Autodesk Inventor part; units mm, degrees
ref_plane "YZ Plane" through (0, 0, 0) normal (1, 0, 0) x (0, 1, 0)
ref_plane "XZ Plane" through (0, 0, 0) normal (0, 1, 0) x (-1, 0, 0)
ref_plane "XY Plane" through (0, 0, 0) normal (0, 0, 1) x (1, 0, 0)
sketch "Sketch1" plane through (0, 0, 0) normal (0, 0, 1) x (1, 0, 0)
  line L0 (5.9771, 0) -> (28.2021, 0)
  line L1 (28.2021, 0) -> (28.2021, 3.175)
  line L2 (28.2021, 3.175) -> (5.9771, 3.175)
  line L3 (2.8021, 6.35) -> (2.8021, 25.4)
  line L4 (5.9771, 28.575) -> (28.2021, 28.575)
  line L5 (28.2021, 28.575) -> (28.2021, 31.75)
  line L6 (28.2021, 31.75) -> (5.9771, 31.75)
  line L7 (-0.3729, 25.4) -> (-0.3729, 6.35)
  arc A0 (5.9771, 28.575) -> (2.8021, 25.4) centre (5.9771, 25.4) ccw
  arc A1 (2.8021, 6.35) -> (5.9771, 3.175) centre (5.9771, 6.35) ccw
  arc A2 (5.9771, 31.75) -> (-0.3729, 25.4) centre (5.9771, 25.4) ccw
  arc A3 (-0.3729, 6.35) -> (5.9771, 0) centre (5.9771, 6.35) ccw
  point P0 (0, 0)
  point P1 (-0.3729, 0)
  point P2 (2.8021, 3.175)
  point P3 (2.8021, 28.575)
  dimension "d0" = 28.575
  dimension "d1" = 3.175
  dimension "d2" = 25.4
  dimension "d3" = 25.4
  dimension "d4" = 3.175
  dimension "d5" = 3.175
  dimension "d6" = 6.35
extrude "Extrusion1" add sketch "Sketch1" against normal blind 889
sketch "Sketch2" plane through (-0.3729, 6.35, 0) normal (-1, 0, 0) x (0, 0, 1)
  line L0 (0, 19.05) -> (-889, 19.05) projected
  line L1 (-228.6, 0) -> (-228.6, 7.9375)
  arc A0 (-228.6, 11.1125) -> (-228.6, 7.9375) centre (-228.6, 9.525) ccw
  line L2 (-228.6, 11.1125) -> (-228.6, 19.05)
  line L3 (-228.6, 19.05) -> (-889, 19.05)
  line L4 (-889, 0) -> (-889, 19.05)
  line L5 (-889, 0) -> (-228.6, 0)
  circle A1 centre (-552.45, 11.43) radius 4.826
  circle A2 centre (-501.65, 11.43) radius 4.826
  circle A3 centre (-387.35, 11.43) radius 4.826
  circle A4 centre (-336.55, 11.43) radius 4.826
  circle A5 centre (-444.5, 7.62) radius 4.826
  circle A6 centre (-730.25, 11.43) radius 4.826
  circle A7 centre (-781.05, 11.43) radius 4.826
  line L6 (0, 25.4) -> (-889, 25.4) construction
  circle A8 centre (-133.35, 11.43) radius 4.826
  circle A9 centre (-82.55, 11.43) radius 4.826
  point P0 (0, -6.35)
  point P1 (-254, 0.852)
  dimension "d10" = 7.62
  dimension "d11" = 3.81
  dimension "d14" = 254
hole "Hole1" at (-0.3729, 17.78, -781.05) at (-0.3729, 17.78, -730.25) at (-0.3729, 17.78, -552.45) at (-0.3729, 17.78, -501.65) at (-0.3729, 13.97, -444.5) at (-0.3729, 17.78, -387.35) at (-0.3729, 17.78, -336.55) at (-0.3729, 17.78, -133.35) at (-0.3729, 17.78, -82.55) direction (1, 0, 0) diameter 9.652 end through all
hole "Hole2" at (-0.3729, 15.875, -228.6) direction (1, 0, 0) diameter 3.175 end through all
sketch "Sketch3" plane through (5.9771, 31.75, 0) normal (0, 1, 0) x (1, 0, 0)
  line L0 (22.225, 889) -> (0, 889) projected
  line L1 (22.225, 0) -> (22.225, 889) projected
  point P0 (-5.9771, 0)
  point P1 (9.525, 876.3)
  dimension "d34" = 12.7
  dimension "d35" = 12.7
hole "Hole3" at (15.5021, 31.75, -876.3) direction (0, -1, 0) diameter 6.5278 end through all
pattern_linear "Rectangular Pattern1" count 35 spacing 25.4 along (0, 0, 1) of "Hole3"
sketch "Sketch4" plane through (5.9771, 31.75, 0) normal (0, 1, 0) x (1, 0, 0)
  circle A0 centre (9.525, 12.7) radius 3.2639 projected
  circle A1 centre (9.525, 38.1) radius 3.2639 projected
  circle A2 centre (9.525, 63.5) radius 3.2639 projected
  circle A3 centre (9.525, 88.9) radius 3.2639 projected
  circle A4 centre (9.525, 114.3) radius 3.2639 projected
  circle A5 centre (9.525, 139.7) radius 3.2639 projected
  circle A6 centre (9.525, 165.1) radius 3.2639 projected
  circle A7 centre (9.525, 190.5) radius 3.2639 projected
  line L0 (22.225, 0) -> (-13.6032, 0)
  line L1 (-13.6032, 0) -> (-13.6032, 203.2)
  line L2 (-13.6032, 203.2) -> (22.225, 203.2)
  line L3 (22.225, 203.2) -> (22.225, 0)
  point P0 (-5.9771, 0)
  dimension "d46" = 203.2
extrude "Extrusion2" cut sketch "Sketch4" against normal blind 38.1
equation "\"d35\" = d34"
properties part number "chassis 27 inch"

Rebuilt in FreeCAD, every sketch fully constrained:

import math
import FreeCAD as App
import Part
import Sketcher
Q = App.Units.Quantity


def add_polygon(sketch, points):
    """Adds a closed chain of lines whose ends are joined by coincident constraints."""
    first, n = sketch.GeometryCount, len(points)
    for a, b in zip(points, points[1:] + points[:1]):
        sketch.addGeometry(Part.LineSegment(App.Vector(*a, 0), App.Vector(*b, 0)), False)
    for i in range(n):
        sketch.addConstraint(Sketcher.Constraint("Coincident", first + i, 2, first + (i + 1) % n, 1))

doc = App.newDocument("Part")
body = doc.addObject("PartDesign::Body", "Body")

sketch1 = doc.addObject("Sketcher::SketchObject", "Sketch")
body.addObject(sketch1)
sketch1.AttachmentSupport = (doc.XY_Plane, [""])
sketch1.MapMode = "FlatFace"
sketch1.addGeometry([
    Part.ArcOfCircle(Part.Circle(App.Vector(6, 6.3, 0), App.Vector(0, 0, 1), 6.3), math.radians(180), math.radians(270)),
    Part.LineSegment(App.Vector(6, 0, 0), App.Vector(28.2, 0, 0)),
    Part.LineSegment(App.Vector(28.2, 0, 0), App.Vector(28.2, 3.2, 0)),
    Part.LineSegment(App.Vector(28.2, 3.2, 0), App.Vector(6, 3.2, 0)),
    Part.ArcOfCircle(Part.Circle(App.Vector(6, 6.3, 0), App.Vector(0, 0, 1), 3.2), math.radians(180), math.radians(270)),
    Part.LineSegment(App.Vector(2.8, 6.3, 0), App.Vector(2.8, 25.4, 0)),
    Part.ArcOfCircle(Part.Circle(App.Vector(6, 25.4, 0), App.Vector(0, 0, 1), 3.2), math.radians(90), math.radians(180)),
    Part.LineSegment(App.Vector(6, 28.6, 0), App.Vector(28.2, 28.6, 0)),
    Part.LineSegment(App.Vector(28.2, 28.6, 0), App.Vector(28.2, 31.8, 0)),
    Part.LineSegment(App.Vector(28.2, 31.8, 0), App.Vector(6, 31.8, 0)),
    Part.ArcOfCircle(Part.Circle(App.Vector(6, 25.4, 0), App.Vector(0, 0, 1), 6.4), math.radians(90), math.radians(180)),
    Part.LineSegment(App.Vector(-0.4, 25.4, 0), App.Vector(-0.4, 6.3, 0)),
], False)
sketch1.addConstraint([
    Sketcher.Constraint("Tangent", 0, 2, 1, 1),
    Sketcher.Constraint("Coincident", 1, 2, 2, 1),
    Sketcher.Constraint("Coincident", 2, 2, 3, 1),
    Sketcher.Constraint("Tangent", 3, 2, 4, 2),
    Sketcher.Constraint("Tangent", 4, 1, 5, 1),
    Sketcher.Constraint("Tangent", 5, 2, 6, 2),
    Sketcher.Constraint("Tangent", 6, 1, 7, 1),
    Sketcher.Constraint("Coincident", 7, 2, 8, 1),
    Sketcher.Constraint("Coincident", 8, 2, 9, 1),
    Sketcher.Constraint("Tangent", 9, 2, 10, 1),
    Sketcher.Constraint("Tangent", 10, 2, 11, 1),
    Sketcher.Constraint("Tangent", 11, 2, 0, 1),
    Sketcher.Constraint("Horizontal", 1),
    Sketcher.Constraint("Vertical", 2),
    Sketcher.Constraint("Horizontal", 3),
    Sketcher.Constraint("Vertical", 5),
    Sketcher.Constraint("Horizontal", 7),
    Sketcher.Constraint("Vertical", 8),
    Sketcher.Constraint("Horizontal", 9),
    Sketcher.Constraint("Vertical", 11),
    Sketcher.Constraint("Coincident", 4, 3, 0, 3),
    Sketcher.Constraint("Coincident", 10, 3, 6, 3),
    Sketcher.Constraint("Equal", 4, 6),
    Sketcher.Constraint("PointOnObject", 0, 2, -1),
    Sketcher.Constraint("Vertical", 2, 2, 7, 2),
    Sketcher.Constraint("Radius", 0, Q("0.25 in")),
    Sketcher.Constraint("DistanceY", -1, 1, 6, 3, Q("1 in")),
    Sketcher.Constraint("Radius", 4, Q("0.125 in")),
    Sketcher.Constraint("DistanceX", 5, 2, 7, 2, Q("1 in")),
    Sketcher.Constraint("DistanceX", -1, 1, 0, 3, Q("5.977 mm")),
])
pad1 = doc.addObject("PartDesign::Pad", "Pad")
body.addObject(pad1)
pad1.Profile = sketch1
pad1.Length = Q("35 in")
pad1.Reversed = True

sketch2 = doc.addObject("Sketcher::SketchObject", "Sketch001")
body.addObject(sketch2)
sketch2.AttachmentSupport = (doc.YZ_Plane, [""])
sketch2.MapMode = "FlatFace"
sketch2.AttachmentOffset = App.Placement(App.Vector(0, 0, -0.3729), App.Rotation())
sketch2.addGeometry([
    Part.Circle(App.Vector(17.8, -781, 0), App.Vector(0, 0, 1), 4.8),
    Part.Circle(App.Vector(17.8, -730.2, 0), App.Vector(0, 0, 1), 4.8),
    Part.Circle(App.Vector(17.8, -552.5, 0), App.Vector(0, 0, 1), 4.8),
    Part.Circle(App.Vector(17.8, -501.6, 0), App.Vector(0, 0, 1), 4.8),
    Part.Circle(App.Vector(14, -444.5, 0), App.Vector(0, 0, 1), 4.8),
    Part.Circle(App.Vector(17.8, -387.4, 0), App.Vector(0, 0, 1), 4.8),
    Part.Circle(App.Vector(17.8, -336.6, 0), App.Vector(0, 0, 1), 4.8),
    Part.Circle(App.Vector(17.8, -133.3, 0), App.Vector(0, 0, 1), 4.8),
    Part.Circle(App.Vector(17.8, -82.5, 0), App.Vector(0, 0, 1), 4.8),
], False)
sketch2.addConstraint([
    Sketcher.Constraint("Equal", 0, 1),
    Sketcher.Constraint("Equal", 1, 2),
    Sketcher.Constraint("Equal", 2, 3),
    Sketcher.Constraint("Equal", 3, 4),
    Sketcher.Constraint("Equal", 4, 5),
    Sketcher.Constraint("Equal", 5, 6),
    Sketcher.Constraint("Equal", 6, 7),
    Sketcher.Constraint("Equal", 7, 8),
    Sketcher.Constraint("Vertical", 0, 3, 1, 3),
    Sketcher.Constraint("Vertical", 1, 3, 2, 3),
    Sketcher.Constraint("Vertical", 2, 3, 3, 3),
    Sketcher.Constraint("Vertical", 3, 3, 5, 3),
    Sketcher.Constraint("Vertical", 5, 3, 6, 3),
    Sketcher.Constraint("Vertical", 6, 3, 7, 3),
    Sketcher.Constraint("Vertical", 7, 3, 8, 3),
    Sketcher.Constraint("Diameter", 0, Q("0.38 in")),
    Sketcher.Constraint("DistanceY", 0, 3, 1, 3, Q("2 in")),
    Sketcher.Constraint("DistanceY", 1, 3, 2, 3, Q("7 in")),
    Sketcher.Constraint("DistanceY", 2, 3, 3, 3, Q("2 in")),
    Sketcher.Constraint("DistanceY", 5, 3, 6, 3, Q("2 in")),
    Sketcher.Constraint("DistanceY", 6, 3, 7, 3, Q("8 in")),
    Sketcher.Constraint("DistanceY", 7, 3, 8, 3, Q("2 in")),
    Sketcher.Constraint("DistanceX", -1, 1, 0, 3, Q("0.7 in")),
    Sketcher.Constraint("DistanceY", 4, 3, -1, 1, Q("17.5 in")),
    Sketcher.Constraint("DistanceY", 3, 3, 5, 3, Q("4.5 in")),
    Sketcher.Constraint("DistanceY", 0, 3, -1, 1, Q("30.75 in")),
    Sketcher.Constraint("DistanceX", -1, 1, 4, 3, Q("0.55 in")),
])
doc.recompute()
hole = doc.addObject("PartDesign::Hole", "Hole")
body.addObject(hole)
hole.Profile = sketch2
hole.ThreadType = "None"
hole.Diameter = Q("0.38 in")
hole.DepthType = "ThroughAll"
hole.Reversed = True

sketch3 = doc.addObject("Sketcher::SketchObject", "Sketch002")
body.addObject(sketch3)
sketch3.AttachmentSupport = (doc.YZ_Plane, [""])
sketch3.MapMode = "FlatFace"
sketch3.AttachmentOffset = App.Placement(App.Vector(0, 0, -0.3729), App.Rotation())
sketch3.addGeometry(Part.Circle(App.Vector(15.9, -228.6, 0), App.Vector(0, 0, 1), 1.6), False)
sketch3.addConstraint([
    Sketcher.Constraint("Diameter", 0, Q("0.125 in")),
    Sketcher.Constraint("DistanceY", 0, 3, -1, 1, Q("9 in")),
    Sketcher.Constraint("DistanceX", -1, 1, 0, 3, Q("0.625 in")),
])
doc.recompute()
hole2 = doc.addObject("PartDesign::Hole", "Hole001")
body.addObject(hole2)
hole2.Profile = sketch3
hole2.ThreadType = "None"
hole2.Diameter = Q("0.125 in")
hole2.DepthType = "ThroughAll"
hole2.Reversed = True

sketch4 = doc.addObject("Sketcher::SketchObject", "Sketch003")
body.addObject(sketch4)
sketch4.AttachmentSupport = (doc.XZ_Plane, [""])
sketch4.MapMode = "FlatFace"
sketch4.AttachmentOffset = App.Placement(App.Vector(0, 0, -1.25 * 25.4), App.Rotation())
sketch4.addGeometry(Part.Circle(App.Vector(15.5, -876.3, 0), App.Vector(0, 0, 1), 3.3), False)
sketch4.addConstraint([
    Sketcher.Constraint("Diameter", 0, Q("0.257 in")),
    Sketcher.Constraint("DistanceY", 0, 3, -1, 1, Q("34.5 in")),
    Sketcher.Constraint("DistanceX", -1, 1, 0, 3, Q("15.502 mm")),
])
doc.recompute()
hole3 = doc.addObject("PartDesign::Hole", "Hole002")
body.addObject(hole3)
hole3.Profile = sketch4
hole3.ThreadType = "None"
hole3.Diameter = Q("0.257 in")
hole3.DepthType = "ThroughAll"
hole3.Reversed = True
doc.recompute()

linearpattern = doc.addObject("PartDesign::LinearPattern", "LinearPattern")
body.addObject(linearpattern)
linearpattern.Originals = [hole3]
linearpattern.Direction = (doc.Z_Axis, [""])
linearpattern.Mode = "offset"
linearpattern.Offset = Q("1 in")
linearpattern.Occurrences = 35
body.Tip = linearpattern

sketch5 = doc.addObject("Sketcher::SketchObject", "Sketch004")
body.addObject(sketch5)
sketch5.AttachmentSupport = (doc.XZ_Plane, [""])
sketch5.MapMode = "FlatFace"
sketch5.AttachmentOffset = App.Placement(App.Vector(0, 0, -1.25 * 25.4), App.Rotation())
add_polygon(sketch5, [(-7.6, 0), (28.2, 0), (28.2, -203.2), (-7.6, -203.2)])
sketch5.addGeometry(Part.Circle(App.Vector(15.5, -12.7, 0), App.Vector(0, 0, 1), 3.3), False)
sketch5.addGeometry(Part.Circle(App.Vector(15.5, -38.1, 0), App.Vector(0, 0, 1), 3.3), False)
sketch5.addGeometry(Part.Circle(App.Vector(15.5, -63.5, 0), App.Vector(0, 0, 1), 3.3), False)
sketch5.addGeometry(Part.Circle(App.Vector(15.5, -88.9, 0), App.Vector(0, 0, 1), 3.3), False)
sketch5.addGeometry(Part.Circle(App.Vector(15.5, -114.3, 0), App.Vector(0, 0, 1), 3.3), False)
sketch5.addGeometry(Part.Circle(App.Vector(15.5, -139.7, 0), App.Vector(0, 0, 1), 3.3), False)
sketch5.addGeometry(Part.Circle(App.Vector(15.5, -165.1, 0), App.Vector(0, 0, 1), 3.3), False)
sketch5.addGeometry(Part.Circle(App.Vector(15.5, -190.5, 0), App.Vector(0, 0, 1), 3.3), False)
sketch5.addConstraint([
    Sketcher.Constraint("Horizontal", 0),
    Sketcher.Constraint("Vertical", 1),
    Sketcher.Constraint("Horizontal", 2),
    Sketcher.Constraint("Vertical", 3),
    Sketcher.Constraint("Equal", 4, 5),
    Sketcher.Constraint("Equal", 5, 6),
    Sketcher.Constraint("Equal", 6, 7),
    Sketcher.Constraint("Equal", 7, 8),
    Sketcher.Constraint("Equal", 8, 9),
    Sketcher.Constraint("Equal", 9, 10),
    Sketcher.Constraint("Equal", 10, 11),
    Sketcher.Constraint("PointOnObject", 0, 2, -1),
    Sketcher.Constraint("Vertical", 4, 3, 5, 3),
    Sketcher.Constraint("Vertical", 5, 3, 6, 3),
    Sketcher.Constraint("Vertical", 6, 3, 7, 3),
    Sketcher.Constraint("Vertical", 7, 3, 8, 3),
    Sketcher.Constraint("Vertical", 8, 3, 9, 3),
    Sketcher.Constraint("Vertical", 9, 3, 10, 3),
    Sketcher.Constraint("Vertical", 10, 3, 11, 3),
    Sketcher.Constraint("DistanceY", 1, 2, 1, 1, Q("8 in")),
    Sketcher.Constraint("Diameter", 4, Q("0.257 in")),
    Sketcher.Constraint("DistanceY", 5, 3, 4, 3, Q("1 in")),
    Sketcher.Constraint("DistanceY", 6, 3, 5, 3, Q("1 in")),
    Sketcher.Constraint("DistanceY", 7, 3, 6, 3, Q("1 in")),
    Sketcher.Constraint("DistanceY", 8, 3, 7, 3, Q("1 in")),
    Sketcher.Constraint("DistanceY", 9, 3, 8, 3, Q("1 in")),
    Sketcher.Constraint("DistanceY", 10, 3, 9, 3, Q("1 in")),
    Sketcher.Constraint("DistanceY", 11, 3, 10, 3, Q("1 in")),
    Sketcher.Constraint("DistanceY", 4, 3, -1, 1, Q("0.5 in")),
    Sketcher.Constraint("DistanceX", 4, 3, 0, 2, Q("0.5 in")),
    Sketcher.Constraint("DistanceX", 0, 1, 0, 2, Q("35.8282 mm")),
    Sketcher.Constraint("DistanceX", -1, 1, 4, 3, Q("15.502 mm")),
])
pocket1 = doc.addObject("PartDesign::Pocket", "Pocket")
body.addObject(pocket1)
pocket1.Profile = sketch5
pocket1.Length = Q("1.5 in")
pocket1.Reversed = True

doc.recompute()
